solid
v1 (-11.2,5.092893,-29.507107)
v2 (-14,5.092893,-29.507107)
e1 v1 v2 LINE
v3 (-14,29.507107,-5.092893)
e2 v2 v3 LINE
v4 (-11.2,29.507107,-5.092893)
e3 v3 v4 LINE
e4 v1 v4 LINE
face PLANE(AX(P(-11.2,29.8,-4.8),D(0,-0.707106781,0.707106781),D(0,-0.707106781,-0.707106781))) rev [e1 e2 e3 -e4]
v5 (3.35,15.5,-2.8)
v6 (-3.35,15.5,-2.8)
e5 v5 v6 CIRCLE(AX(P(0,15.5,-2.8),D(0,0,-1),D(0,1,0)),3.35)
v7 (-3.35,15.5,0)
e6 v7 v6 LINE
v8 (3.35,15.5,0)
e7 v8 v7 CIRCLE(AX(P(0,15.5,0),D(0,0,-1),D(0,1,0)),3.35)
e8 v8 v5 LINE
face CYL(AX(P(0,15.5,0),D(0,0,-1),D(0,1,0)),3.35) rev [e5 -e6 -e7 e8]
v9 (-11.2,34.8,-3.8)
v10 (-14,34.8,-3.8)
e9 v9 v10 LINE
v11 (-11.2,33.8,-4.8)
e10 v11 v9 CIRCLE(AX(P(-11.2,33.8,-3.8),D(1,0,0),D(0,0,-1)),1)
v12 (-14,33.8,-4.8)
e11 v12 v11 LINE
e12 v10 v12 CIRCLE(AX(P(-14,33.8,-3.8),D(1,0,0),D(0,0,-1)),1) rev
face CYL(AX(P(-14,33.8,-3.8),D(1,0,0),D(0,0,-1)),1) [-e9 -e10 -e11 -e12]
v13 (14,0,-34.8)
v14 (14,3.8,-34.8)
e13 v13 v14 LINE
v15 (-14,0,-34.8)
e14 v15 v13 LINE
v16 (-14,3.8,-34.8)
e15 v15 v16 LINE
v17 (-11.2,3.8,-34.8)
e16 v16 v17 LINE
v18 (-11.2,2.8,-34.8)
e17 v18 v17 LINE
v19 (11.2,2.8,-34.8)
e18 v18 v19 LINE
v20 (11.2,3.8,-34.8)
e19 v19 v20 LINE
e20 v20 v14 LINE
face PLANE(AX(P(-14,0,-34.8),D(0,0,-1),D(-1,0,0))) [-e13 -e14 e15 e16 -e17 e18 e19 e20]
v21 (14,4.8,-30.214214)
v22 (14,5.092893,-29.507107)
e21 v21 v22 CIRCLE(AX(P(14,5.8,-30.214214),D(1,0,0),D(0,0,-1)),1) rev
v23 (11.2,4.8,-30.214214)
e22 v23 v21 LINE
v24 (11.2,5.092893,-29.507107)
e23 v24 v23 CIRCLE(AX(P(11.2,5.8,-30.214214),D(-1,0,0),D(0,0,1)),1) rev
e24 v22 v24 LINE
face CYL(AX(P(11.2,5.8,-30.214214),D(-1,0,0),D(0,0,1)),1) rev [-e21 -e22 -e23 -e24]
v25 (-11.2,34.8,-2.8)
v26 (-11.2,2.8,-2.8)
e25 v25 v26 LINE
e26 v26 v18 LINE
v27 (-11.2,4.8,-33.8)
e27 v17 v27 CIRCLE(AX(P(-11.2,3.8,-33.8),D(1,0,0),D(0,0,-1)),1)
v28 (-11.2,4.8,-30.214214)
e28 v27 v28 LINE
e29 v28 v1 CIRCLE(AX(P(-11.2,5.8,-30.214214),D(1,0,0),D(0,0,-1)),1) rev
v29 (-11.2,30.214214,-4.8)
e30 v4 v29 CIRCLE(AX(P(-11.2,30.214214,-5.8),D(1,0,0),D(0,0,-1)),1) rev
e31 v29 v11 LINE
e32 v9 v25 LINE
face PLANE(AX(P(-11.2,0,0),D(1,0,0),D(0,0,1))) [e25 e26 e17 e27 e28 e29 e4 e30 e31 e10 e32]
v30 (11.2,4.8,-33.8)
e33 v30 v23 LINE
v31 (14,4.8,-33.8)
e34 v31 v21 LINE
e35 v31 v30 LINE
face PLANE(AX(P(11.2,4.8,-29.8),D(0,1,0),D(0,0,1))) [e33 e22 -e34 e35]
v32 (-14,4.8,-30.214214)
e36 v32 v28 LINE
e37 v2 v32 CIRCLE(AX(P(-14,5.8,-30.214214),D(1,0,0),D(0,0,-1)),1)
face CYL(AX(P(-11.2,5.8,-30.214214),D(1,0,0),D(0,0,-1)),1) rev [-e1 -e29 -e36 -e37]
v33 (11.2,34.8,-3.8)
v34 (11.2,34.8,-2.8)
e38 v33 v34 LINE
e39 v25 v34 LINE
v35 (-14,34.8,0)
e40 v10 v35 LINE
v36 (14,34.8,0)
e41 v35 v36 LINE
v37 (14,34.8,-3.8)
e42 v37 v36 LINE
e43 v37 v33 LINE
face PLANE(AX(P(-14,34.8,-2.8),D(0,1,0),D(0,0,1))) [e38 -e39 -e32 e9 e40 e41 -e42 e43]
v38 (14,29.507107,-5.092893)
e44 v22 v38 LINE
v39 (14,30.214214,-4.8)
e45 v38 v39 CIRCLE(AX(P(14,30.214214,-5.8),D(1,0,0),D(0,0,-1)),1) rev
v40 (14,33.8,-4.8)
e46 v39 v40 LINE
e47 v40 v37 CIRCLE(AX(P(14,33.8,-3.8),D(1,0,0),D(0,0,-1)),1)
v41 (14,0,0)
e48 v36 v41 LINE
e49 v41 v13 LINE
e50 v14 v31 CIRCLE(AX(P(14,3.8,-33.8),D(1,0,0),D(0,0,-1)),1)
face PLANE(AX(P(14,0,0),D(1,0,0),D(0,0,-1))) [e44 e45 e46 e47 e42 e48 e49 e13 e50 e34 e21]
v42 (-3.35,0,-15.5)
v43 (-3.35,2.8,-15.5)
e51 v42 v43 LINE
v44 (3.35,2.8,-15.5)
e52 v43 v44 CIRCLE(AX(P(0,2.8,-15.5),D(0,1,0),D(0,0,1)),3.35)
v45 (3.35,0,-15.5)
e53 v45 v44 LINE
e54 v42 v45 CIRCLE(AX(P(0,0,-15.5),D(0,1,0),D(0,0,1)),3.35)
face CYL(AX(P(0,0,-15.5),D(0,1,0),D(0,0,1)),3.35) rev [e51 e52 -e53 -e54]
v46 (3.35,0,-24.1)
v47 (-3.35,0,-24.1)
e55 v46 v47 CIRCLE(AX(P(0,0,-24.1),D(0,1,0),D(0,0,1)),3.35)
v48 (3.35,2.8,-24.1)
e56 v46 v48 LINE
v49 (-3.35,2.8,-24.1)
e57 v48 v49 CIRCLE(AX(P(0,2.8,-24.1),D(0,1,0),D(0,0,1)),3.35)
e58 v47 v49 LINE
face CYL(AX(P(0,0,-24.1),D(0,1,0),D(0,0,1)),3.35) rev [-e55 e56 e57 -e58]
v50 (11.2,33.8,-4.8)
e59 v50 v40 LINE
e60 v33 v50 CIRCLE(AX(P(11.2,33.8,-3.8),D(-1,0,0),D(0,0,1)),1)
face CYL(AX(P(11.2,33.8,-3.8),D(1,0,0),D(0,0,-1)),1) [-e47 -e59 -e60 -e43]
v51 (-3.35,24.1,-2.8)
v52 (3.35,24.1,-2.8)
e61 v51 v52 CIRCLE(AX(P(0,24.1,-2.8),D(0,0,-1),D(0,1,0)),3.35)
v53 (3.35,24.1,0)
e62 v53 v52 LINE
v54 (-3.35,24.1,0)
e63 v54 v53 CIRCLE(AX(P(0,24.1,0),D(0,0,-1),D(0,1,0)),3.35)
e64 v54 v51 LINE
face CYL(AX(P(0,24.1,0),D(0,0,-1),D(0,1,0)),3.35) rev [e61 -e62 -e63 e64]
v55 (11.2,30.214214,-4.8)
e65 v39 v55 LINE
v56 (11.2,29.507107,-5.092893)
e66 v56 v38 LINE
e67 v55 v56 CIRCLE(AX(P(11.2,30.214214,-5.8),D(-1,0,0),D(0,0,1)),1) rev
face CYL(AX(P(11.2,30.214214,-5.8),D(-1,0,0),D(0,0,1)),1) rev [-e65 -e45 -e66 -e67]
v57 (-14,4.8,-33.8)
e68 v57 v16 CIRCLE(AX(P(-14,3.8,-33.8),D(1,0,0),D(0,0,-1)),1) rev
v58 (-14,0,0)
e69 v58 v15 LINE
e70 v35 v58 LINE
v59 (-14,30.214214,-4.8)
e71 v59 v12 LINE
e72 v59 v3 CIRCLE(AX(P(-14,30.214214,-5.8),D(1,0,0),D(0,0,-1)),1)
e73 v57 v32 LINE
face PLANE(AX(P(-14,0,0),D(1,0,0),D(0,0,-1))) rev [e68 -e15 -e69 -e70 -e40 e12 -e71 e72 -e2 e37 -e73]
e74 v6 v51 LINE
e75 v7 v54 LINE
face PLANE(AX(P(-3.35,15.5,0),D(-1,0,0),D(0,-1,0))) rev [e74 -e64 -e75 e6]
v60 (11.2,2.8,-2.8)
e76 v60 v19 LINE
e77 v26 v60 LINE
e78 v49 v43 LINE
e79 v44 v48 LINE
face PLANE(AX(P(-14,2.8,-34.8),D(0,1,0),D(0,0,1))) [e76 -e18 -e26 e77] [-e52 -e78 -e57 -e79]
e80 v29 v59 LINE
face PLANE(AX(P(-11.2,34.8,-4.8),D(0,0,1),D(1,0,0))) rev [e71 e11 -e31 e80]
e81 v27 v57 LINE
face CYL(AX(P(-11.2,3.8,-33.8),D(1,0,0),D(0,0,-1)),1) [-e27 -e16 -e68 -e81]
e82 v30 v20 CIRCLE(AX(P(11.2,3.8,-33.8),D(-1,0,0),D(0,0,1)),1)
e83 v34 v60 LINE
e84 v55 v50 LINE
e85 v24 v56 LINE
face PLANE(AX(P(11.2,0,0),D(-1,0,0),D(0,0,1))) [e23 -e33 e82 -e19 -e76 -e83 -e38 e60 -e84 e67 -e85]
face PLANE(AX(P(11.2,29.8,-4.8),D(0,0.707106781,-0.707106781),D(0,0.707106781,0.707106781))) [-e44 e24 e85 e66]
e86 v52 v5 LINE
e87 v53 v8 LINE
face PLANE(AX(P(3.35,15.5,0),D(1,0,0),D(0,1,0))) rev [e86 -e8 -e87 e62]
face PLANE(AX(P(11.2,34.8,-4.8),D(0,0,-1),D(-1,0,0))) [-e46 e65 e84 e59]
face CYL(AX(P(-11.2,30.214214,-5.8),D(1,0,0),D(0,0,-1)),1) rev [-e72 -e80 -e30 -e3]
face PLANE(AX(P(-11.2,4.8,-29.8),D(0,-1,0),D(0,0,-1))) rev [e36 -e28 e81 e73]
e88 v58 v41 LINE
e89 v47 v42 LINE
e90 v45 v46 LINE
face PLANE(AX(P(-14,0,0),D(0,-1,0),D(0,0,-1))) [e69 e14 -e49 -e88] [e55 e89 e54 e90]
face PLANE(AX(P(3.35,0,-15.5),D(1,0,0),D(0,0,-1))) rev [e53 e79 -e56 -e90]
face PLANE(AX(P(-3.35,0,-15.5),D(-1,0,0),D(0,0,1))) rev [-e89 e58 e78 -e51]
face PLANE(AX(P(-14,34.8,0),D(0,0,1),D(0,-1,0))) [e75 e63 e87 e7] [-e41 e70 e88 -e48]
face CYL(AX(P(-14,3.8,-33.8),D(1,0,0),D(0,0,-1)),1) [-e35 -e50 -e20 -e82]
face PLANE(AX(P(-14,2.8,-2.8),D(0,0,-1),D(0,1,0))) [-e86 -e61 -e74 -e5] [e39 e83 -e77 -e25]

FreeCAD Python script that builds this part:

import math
import FreeCAD as App
import Part
import Sketcher
from FreeCAD import Vector


def edges_at(feature, points):
    """Names of the edges that pass closest to the given points."""
    edges = feature.Shape.Edges
    near = lambda p: min(range(len(edges)), key=lambda i: edges[i].distToShape(Part.Vertex(*p))[0])
    return sorted({f"Edge{near(p) + 1}" for p in points})

doc = App.newDocument("Part")
body = doc.addObject("PartDesign::Body", "Body")

# Sketch on YZ plane
sketch1 = doc.addObject("Sketcher::SketchObject", "Sketch")
body.addObject(sketch1)
sketch1.AttachmentSupport = (doc.YZ_Plane, [""])
sketch1.MapMode = "FlatFace"
sketch1.addGeometry([
    Part.LineSegment(Vector(34.8, 0, 0), Vector(0, 0, 0)),  # 0
    Part.LineSegment(Vector(0, 0, 0), Vector(0, -34.8, 0)),  # 1
    Part.LineSegment(Vector(0, -34.8, 0), Vector(2.8, -34.8, 0)),  # 2
    Part.LineSegment(Vector(2.8, -34.8, 0), Vector(2.8, -2.8, 0)),  # 3
    Part.LineSegment(Vector(2.8, -2.8, 0), Vector(34.8, -2.8, 0)),  # 4
    Part.LineSegment(Vector(34.8, -2.8, 0), Vector(34.8, 0, 0)),  # 5
], False)
sketch1.addConstraint([
    Sketcher.Constraint("Coincident", 0, 2, 1, 1),
    Sketcher.Constraint("Coincident", 1, 2, 2, 1),
    Sketcher.Constraint("Coincident", 2, 2, 3, 1),
    Sketcher.Constraint("Coincident", 3, 2, 4, 1),
    Sketcher.Constraint("Coincident", 4, 2, 5, 1),
    Sketcher.Constraint("Coincident", 5, 2, 0, 1),
    Sketcher.Constraint("Horizontal", 0),
    Sketcher.Constraint("Vertical", 1),
    Sketcher.Constraint("Horizontal", 2),
    Sketcher.Constraint("Vertical", 3),
    Sketcher.Constraint("Horizontal", 4),
    Sketcher.Constraint("Vertical", 5),
    Sketcher.Constraint("Coincident", 0, 2, -1, 1),
    Sketcher.Constraint("Equal", 0, 1),
    Sketcher.Constraint("Equal", 4, 3),
    Sketcher.Constraint("DistanceX", 4, 1, 4, 2, 32.0),
    Sketcher.Constraint("DistanceX", 0, 2, 0, 1, 34.8),
])
pad1 = doc.addObject("PartDesign::Pad", "Pad")
body.addObject(pad1)
pad1.Profile = sketch1
pad1.Length = 28
pad1.Midplane = True

# Sketch on YZ plane
sketch2 = doc.addObject("Sketcher::SketchObject", "Sketch001")
body.addObject(sketch2)
sketch2.AttachmentSupport = (doc.YZ_Plane, [""])
sketch2.MapMode = "FlatFace"
sketch2.AttachmentOffset = App.Placement(Vector(0, 0, 14), App.Rotation())
sketch2.addGeometry([
    Part.LineSegment(Vector(34.8, -4.8, 0), Vector(34.8, -2.8, 0)),  # 0
    Part.LineSegment(Vector(34.8, -2.8, 0), Vector(2.8, -2.8, 0)),  # 1
    Part.LineSegment(Vector(2.8, -2.8, 0), Vector(2.8, -34.8, 0)),  # 2
    Part.LineSegment(Vector(2.8, -34.8, 0), Vector(4.8, -34.8, 0)),  # 3
    Part.LineSegment(Vector(4.8, -34.8, 0), Vector(4.8, -29.8, 0)),  # 4
    Part.LineSegment(Vector(4.8, -29.8, 0), Vector(29.8, -4.8, 0)),  # 5
    Part.LineSegment(Vector(29.8, -4.8, 0), Vector(34.8, -4.8, 0)),  # 6
], False)
sketch2.addConstraint([
    Sketcher.Constraint("Coincident", 0, 2, 1, 1),
    Sketcher.Constraint("Coincident", 1, 2, 2, 1),
    Sketcher.Constraint("Coincident", 2, 2, 3, 1),
    Sketcher.Constraint("Coincident", 3, 2, 4, 1),
    Sketcher.Constraint("Coincident", 4, 2, 5, 1),
    Sketcher.Constraint("Coincident", 5, 2, 6, 1),
    Sketcher.Constraint("Coincident", 6, 2, 0, 1),
    Sketcher.Constraint("Vertical", 0),
    Sketcher.Constraint("Horizontal", 1),
    Sketcher.Constraint("Vertical", 2),
    Sketcher.Constraint("Horizontal", 3),
    Sketcher.Constraint("Vertical", 4),
    Sketcher.Constraint("Horizontal", 6),
    Sketcher.Constraint("Equal", 3, 0),
    Sketcher.Constraint("Equal", 1, 2),
    Sketcher.Constraint("Equal", 6, 4),
    Sketcher.Constraint("DistanceX", 1, 2, 1, 1, 32.0),
    Sketcher.Constraint("DistanceX", 3, 1, 3, 2, 2.0),
    Sketcher.Constraint("DistanceX", 6, 1, 6, 2, 5.0),
    Sketcher.Constraint("DistanceX", -1, 1, 0, 2, 34.8),
    Sketcher.Constraint("DistanceY", 0, 2, -1, 1, 2.8),
])
pad2 = doc.addObject("PartDesign::Pad", "Pad001")
body.addObject(pad2)
pad2.Profile = sketch2
pad2.Length = 2.8
pad2.Reversed = True
doc.recompute()

mirrored = doc.addObject("PartDesign::Mirrored", "Mirrored")
body.addObject(mirrored)
mirrored.Originals = [pad2]
mirrored.MirrorPlane = (doc.YZ_Plane, [""])
body.Tip = mirrored
doc.recompute()

fillet = doc.addObject("PartDesign::Fillet", "Fillet")
body.addObject(fillet)
fillet.Base = (mirrored, edges_at(mirrored, [
    (12.6, 34.8, -4.8),
    (12.6, 29.8, -4.8),
    (12.6, 4.8, -29.8),
    (12.6, 4.8, -34.8),
    (-12.6, 4.8, -34.8),
    (-12.6, 4.8, -29.8),
    (-12.6, 29.8, -4.8),
    (-12.6, 34.8, -4.8),
]))
fillet.Radius = 1

# Sketch on XZ plane
sketch3 = doc.addObject("Sketcher::SketchObject", "Sketch002")
body.addObject(sketch3)
sketch3.AttachmentSupport = (doc.XZ_Plane, [""])
sketch3.MapMode = "FlatFace"
sketch3.AttachmentOffset = App.Placement(Vector(0, 0, -2.8), App.Rotation())
sketch3.addGeometry([
    Part.LineSegment(Vector(-3.35, -24.1, 0), Vector(-3.35, -15.5, 0)),
    Part.ArcOfCircle(Part.Circle(Vector(0, -15.5, 0), Vector(0, 0, 1), 3.35), math.radians(0), math.radians(180)),
    Part.LineSegment(Vector(3.35, -15.5, 0), Vector(3.35, -24.1, 0)),
    Part.ArcOfCircle(Part.Circle(Vector(0, -24.1, 0), Vector(0, 0, 1), 3.35), math.radians(180), math.radians(360)),
], False)
sketch3.addConstraint([
    Sketcher.Constraint("Tangent", 0, 2, 1, 2),
    Sketcher.Constraint("Tangent", 1, 1, 2, 1),
    Sketcher.Constraint("Tangent", 2, 2, 3, 2),
    Sketcher.Constraint("Tangent", 3, 1, 0, 1),
    Sketcher.Constraint("Vertical", 0),
    Sketcher.Constraint("Vertical", 2),
    Sketcher.Constraint("PointOnObject", 1, 3, -2),
    Sketcher.Constraint("Radius", 1, 3.35),
    Sketcher.Constraint("DistanceY", 0, 1, 0, 2, 8.6),
    Sketcher.Constraint("DistanceY", 1, 3, -1, 1, 15.5),
])
pocket1 = doc.addObject("PartDesign::Pocket", "Pocket")
body.addObject(pocket1)
pocket1.Profile = sketch3
pocket1.Length = 2.8
pocket1.Reversed = True

# Sketch on XY plane
sketch4 = doc.addObject("Sketcher::SketchObject", "Sketch003")
body.addObject(sketch4)
sketch4.AttachmentSupport = (doc.XY_Plane, [""])
sketch4.MapMode = "FlatFace"
sketch4.AttachmentOffset = App.Placement(Vector(0, 0, -2.8), App.Rotation())
sketch4.addGeometry([
    Part.LineSegment(Vector(3.35, 24.1, 0), Vector(3.35, 15.5, 0)),
    Part.ArcOfCircle(Part.Circle(Vector(0, 15.5, 0), Vector(0, 0, 1), 3.35), math.radians(180), math.radians(360)),
    Part.LineSegment(Vector(-3.35, 15.5, 0), Vector(-3.35, 24.1, 0)),
    Part.ArcOfCircle(Part.Circle(Vector(0, 24.1, 0), Vector(0, 0, 1), 3.35), math.radians(0), math.radians(180)),
], False)
sketch4.addConstraint([
    Sketcher.Constraint("Tangent", 0, 2, 1, 2),
    Sketcher.Constraint("Tangent", 1, 1, 2, 1),
    Sketcher.Constraint("Tangent", 2, 2, 3, 2),
    Sketcher.Constraint("Tangent", 3, 1, 0, 1),
    Sketcher.Constraint("Vertical", 0),
    Sketcher.Constraint("Vertical", 2),
    Sketcher.Constraint("PointOnObject", 1, 3, -2),
    Sketcher.Constraint("Radius", 1, 3.35),
    Sketcher.Constraint("DistanceY", 0, 2, 0, 1, 8.6),
    Sketcher.Constraint("DistanceY", -1, 1, 1, 3, 15.5),
])
pocket2 = doc.addObject("PartDesign::Pocket", "Pocket001")
body.addObject(pocket2)
pocket2.Profile = sketch4
pocket2.Length = 2.8
pocket2.Reversed = True

doc.recompute()
